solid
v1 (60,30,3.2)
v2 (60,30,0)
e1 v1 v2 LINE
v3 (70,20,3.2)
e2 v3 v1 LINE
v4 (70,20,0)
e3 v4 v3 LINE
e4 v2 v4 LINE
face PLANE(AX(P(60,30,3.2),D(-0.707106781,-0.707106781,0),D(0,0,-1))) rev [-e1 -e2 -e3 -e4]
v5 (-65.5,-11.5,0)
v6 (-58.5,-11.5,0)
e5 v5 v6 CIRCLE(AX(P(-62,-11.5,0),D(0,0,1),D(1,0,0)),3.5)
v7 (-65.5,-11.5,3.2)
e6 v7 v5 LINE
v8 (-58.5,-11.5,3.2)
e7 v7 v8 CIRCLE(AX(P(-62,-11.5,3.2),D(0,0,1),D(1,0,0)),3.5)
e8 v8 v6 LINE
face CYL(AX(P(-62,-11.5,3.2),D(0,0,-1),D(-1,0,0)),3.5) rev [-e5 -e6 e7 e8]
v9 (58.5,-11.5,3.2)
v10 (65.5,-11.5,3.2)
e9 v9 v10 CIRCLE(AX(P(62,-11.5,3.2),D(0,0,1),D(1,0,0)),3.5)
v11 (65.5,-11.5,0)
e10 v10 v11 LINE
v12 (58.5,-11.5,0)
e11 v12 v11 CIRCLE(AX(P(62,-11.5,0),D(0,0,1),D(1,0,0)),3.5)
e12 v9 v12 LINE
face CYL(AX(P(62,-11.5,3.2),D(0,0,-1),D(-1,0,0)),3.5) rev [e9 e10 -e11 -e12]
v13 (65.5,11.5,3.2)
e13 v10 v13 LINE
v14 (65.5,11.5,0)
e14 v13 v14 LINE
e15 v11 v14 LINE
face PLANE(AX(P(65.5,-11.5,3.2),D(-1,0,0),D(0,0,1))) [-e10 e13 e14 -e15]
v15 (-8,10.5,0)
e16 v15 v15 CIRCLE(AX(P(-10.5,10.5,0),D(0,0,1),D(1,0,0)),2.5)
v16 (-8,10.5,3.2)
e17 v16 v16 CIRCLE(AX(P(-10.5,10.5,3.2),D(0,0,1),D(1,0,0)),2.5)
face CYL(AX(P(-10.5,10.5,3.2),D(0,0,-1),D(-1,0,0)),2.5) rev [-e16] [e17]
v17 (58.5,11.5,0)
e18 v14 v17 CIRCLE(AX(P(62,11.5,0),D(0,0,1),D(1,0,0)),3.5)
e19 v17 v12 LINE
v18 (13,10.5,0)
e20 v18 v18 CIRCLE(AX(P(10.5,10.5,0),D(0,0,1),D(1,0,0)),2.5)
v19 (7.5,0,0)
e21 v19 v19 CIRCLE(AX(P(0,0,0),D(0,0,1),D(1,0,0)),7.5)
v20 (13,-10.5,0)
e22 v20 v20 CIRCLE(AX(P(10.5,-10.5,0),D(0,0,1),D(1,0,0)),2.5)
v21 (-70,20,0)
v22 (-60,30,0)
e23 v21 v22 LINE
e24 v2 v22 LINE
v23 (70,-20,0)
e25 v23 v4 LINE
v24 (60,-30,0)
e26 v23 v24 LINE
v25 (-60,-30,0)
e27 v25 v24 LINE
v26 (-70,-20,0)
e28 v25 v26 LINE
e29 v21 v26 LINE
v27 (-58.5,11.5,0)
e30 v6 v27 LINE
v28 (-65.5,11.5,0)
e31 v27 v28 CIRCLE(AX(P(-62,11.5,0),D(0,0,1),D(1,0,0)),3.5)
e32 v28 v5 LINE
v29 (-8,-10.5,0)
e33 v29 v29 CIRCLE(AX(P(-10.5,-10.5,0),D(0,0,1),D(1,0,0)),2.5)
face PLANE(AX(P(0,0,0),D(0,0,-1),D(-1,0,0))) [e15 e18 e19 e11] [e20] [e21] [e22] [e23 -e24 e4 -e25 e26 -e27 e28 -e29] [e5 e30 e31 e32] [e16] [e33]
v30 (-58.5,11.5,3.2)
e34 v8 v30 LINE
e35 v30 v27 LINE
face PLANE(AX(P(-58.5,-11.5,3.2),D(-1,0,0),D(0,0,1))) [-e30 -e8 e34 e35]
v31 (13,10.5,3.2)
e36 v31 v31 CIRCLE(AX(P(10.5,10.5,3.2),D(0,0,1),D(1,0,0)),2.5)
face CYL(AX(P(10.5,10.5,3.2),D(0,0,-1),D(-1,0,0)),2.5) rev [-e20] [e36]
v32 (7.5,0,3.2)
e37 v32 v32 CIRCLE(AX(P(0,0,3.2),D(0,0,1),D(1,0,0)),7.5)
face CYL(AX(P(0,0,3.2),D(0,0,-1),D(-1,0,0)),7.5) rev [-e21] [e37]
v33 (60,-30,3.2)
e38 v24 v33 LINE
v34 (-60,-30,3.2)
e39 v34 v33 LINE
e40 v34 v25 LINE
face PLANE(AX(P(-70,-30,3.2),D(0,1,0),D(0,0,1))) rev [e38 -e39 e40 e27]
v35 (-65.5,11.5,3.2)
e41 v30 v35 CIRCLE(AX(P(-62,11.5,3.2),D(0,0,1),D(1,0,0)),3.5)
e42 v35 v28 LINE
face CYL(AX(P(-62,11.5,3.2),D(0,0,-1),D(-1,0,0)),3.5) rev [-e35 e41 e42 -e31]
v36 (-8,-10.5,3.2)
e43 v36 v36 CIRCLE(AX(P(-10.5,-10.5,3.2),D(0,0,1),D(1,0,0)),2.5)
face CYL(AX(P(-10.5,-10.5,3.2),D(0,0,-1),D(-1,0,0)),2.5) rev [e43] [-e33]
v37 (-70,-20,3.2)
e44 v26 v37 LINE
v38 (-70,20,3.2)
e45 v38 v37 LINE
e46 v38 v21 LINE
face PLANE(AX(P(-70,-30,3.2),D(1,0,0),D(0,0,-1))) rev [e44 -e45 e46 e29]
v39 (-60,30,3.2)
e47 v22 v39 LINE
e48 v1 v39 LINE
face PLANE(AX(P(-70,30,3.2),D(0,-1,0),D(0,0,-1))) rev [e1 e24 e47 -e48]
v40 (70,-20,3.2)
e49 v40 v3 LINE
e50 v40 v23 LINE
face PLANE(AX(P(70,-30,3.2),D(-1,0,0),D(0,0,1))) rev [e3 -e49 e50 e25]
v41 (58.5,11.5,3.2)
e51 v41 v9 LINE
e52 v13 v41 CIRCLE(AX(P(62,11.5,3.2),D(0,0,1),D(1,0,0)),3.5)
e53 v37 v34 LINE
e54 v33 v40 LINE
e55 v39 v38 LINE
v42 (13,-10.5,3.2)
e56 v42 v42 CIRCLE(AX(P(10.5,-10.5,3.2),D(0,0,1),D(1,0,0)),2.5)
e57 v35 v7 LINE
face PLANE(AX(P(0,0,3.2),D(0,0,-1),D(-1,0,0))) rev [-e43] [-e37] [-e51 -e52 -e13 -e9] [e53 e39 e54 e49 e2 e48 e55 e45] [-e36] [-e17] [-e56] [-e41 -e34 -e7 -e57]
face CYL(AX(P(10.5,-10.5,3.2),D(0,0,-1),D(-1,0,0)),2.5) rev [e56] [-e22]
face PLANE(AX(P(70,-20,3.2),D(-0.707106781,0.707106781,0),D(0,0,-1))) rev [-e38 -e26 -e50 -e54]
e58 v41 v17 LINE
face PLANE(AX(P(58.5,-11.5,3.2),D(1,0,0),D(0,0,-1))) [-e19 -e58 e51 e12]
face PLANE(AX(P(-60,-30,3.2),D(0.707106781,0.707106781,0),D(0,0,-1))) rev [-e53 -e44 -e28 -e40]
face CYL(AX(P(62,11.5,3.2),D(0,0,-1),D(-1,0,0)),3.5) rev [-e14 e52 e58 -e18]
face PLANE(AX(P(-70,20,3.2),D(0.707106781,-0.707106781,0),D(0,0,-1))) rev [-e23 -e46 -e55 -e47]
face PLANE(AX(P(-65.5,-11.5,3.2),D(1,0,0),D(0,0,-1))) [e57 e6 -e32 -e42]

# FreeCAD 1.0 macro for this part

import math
import FreeCAD as App
import Part
import Sketcher

V = App.Vector


def edges_at(feature, points):
    """Names of the edges that pass closest to the given points."""
    edges = feature.Shape.Edges
    near = lambda p: min(range(len(edges)), key=lambda i: edges[i].distToShape(Part.Vertex(*p))[0])
    return sorted({f"Edge{near(p) + 1}" for p in points})

doc = App.newDocument("Part")
body = doc.addObject("PartDesign::Body", "Body")

# Sketch on XY plane
sketch1 = body.newObject("Sketcher::SketchObject", "Sketch")
sketch1.AttachmentSupport = (doc.getObject("XY_Plane"), [""])
sketch1.MapMode = "FlatFace"
sketch1.addGeometry(Part.LineSegment(V(-70, 30, 0), V(-70, -30, 0)), False)
sketch1.addGeometry(Part.LineSegment(V(-70, -30, 0), V(70, -30, 0)), False)
sketch1.addGeometry(Part.LineSegment(V(70, -30, 0), V(70, 30, 0)), False)
sketch1.addGeometry(Part.LineSegment(V(70, 30, 0), V(-70, 30, 0)), False)
sketch1.addGeometry(Part.Circle(V(-10.5, -10.5, 0), V(0, 0, 1), 2.5), False)
sketch1.addGeometry(Part.Circle(V(10.5, -10.5, 0), V(0, 0, 1), 2.5), False)
sketch1.addGeometry(Part.ArcOfCircle(Part.Circle(V(-62, -11.5, 0), V(0, 0, 1), 3.5), math.radians(180), math.radians(360)), False)
sketch1.addGeometry(Part.LineSegment(V(-65.5, -11.5, 0), V(-65.5, 11.5, 0)), False)
sketch1.addGeometry(Part.ArcOfCircle(Part.Circle(V(-62, 11.5, 0), V(0, 0, 1), 3.5), math.radians(0), math.radians(180)), False)
sketch1.addGeometry(Part.LineSegment(V(-58.5, 11.5, 0), V(-58.5, -11.5, 0)), False)
sketch1.addGeometry(Part.Circle(V(-10.5, 10.5, 0), V(0, 0, 1), 2.5), False)
sketch1.addGeometry(Part.Circle(V(0, 0, 0), V(0, 0, 1), 7.5), False)
sketch1.addGeometry(Part.ArcOfCircle(Part.Circle(V(62, -11.5, 0), V(0, 0, 1), 3.5), math.radians(180), math.radians(360)), False)
sketch1.addGeometry(Part.LineSegment(V(58.5, -11.5, 0), V(58.5, 11.5, 0)), False)
sketch1.addGeometry(Part.ArcOfCircle(Part.Circle(V(62, 11.5, 0), V(0, 0, 1), 3.5), math.radians(0), math.radians(180)), False)
sketch1.addGeometry(Part.LineSegment(V(65.5, 11.5, 0), V(65.5, -11.5, 0)), False)
sketch1.addGeometry(Part.Circle(V(10.5, 10.5, 0), V(0, 0, 1), 2.5), False)
sketch1.addConstraint(Sketcher.Constraint("Coincident", 0, 2, 1, 1))
sketch1.addConstraint(Sketcher.Constraint("Coincident", 1, 2, 2, 1))
sketch1.addConstraint(Sketcher.Constraint("Coincident", 2, 2, 3, 1))
sketch1.addConstraint(Sketcher.Constraint("Coincident", 3, 2, 0, 1))
sketch1.addConstraint(Sketcher.Constraint("Tangent", 6, 1, 7, 1))
sketch1.addConstraint(Sketcher.Constraint("Tangent", 7, 2, 8, 2))
sketch1.addConstraint(Sketcher.Constraint("Tangent", 8, 1, 9, 1))
sketch1.addConstraint(Sketcher.Constraint("Tangent", 9, 2, 6, 2))
sketch1.addConstraint(Sketcher.Constraint("Tangent", 12, 1, 13, 1))
sketch1.addConstraint(Sketcher.Constraint("Tangent", 13, 2, 14, 2))
sketch1.addConstraint(Sketcher.Constraint("Tangent", 14, 1, 15, 1))
sketch1.addConstraint(Sketcher.Constraint("Tangent", 15, 2, 12, 2))
sketch1.addConstraint(Sketcher.Constraint("Vertical", 0))
sketch1.addConstraint(Sketcher.Constraint("Horizontal", 1))
sketch1.addConstraint(Sketcher.Constraint("Vertical", 2))
sketch1.addConstraint(Sketcher.Constraint("Horizontal", 3))
sketch1.addConstraint(Sketcher.Constraint("Vertical", 7))
sketch1.addConstraint(Sketcher.Constraint("Vertical", 9))
sketch1.addConstraint(Sketcher.Constraint("Vertical", 13))
sketch1.addConstraint(Sketcher.Constraint("Vertical", 15))
sketch1.addConstraint(Sketcher.Constraint("Coincident", 11, 3, -1, 1))
sketch1.addConstraint(Sketcher.Constraint("Equal", 4, 5))
sketch1.addConstraint(Sketcher.Constraint("Equal", 5, 10))
sketch1.addConstraint(Sketcher.Constraint("Equal", 8, 12))
sketch1.addConstraint(Sketcher.Constraint("Equal", 10, 16))
sketch1.addConstraint(Sketcher.Constraint("Symmetric", 5, 3, 10, 3, -1, 1))
sketch1.addConstraint(Sketcher.Constraint("Symmetric", 8, 3, 12, 3, -1, 1))
sketch1.addConstraint(Sketcher.Constraint("Symmetric", 4, 3, 16, 3, -1, 1))
sketch1.addConstraint(Sketcher.Constraint("Symmetric", 0, 2, 2, 2, -1, 1))
sketch1.addConstraint(Sketcher.Constraint("Symmetric", 4, 3, 5, 3, -2))
sketch1.addConstraint(Sketcher.Constraint("Horizontal", 6, 3, 12, 3))
sketch1.addConstraint(Sketcher.Constraint("Horizontal", 8, 3, 14, 3))
sketch1.addConstraint(Sketcher.Constraint("Diameter", 4, 5.0))
sketch1.addConstraint(Sketcher.Constraint("Diameter", 11, 15.0))
sketch1.addConstraint(Sketcher.Constraint("Radius", 6, 3.5))
sketch1.addConstraint(Sketcher.Constraint("DistanceX", 1, 1, 1, 2, 140.0))
sketch1.addConstraint(Sketcher.Constraint("DistanceY", 0, 2, 0, 1, 60.0))
sketch1.addConstraint(Sketcher.Constraint("DistanceY", 7, 1, 7, 2, 23.0))
sketch1.addConstraint(Sketcher.Constraint("DistanceX", 6, 3, -1, 1, 62.0))
sketch1.addConstraint(Sketcher.Constraint("DistanceX", 4, 3, 5, 3, 21.0))
sketch1.addConstraint(Sketcher.Constraint("DistanceY", 6, 3, 4, 3, 1.0))
pad1 = body.newObject("PartDesign::Pad", "Pad")
pad1.Profile = sketch1
pad1.Length = 3.2
doc.recompute()

chamfer = body.newObject("PartDesign::Chamfer", "Chamfer")
chamfer.Base = (pad1, edges_at(pad1, [
    (70, -30, 1.6),
    (-70, -30, 1.6),
    (-70, 30, 1.6),
    (70, 30, 1.6),
]))
chamfer.Size = 10

doc.recompute()
